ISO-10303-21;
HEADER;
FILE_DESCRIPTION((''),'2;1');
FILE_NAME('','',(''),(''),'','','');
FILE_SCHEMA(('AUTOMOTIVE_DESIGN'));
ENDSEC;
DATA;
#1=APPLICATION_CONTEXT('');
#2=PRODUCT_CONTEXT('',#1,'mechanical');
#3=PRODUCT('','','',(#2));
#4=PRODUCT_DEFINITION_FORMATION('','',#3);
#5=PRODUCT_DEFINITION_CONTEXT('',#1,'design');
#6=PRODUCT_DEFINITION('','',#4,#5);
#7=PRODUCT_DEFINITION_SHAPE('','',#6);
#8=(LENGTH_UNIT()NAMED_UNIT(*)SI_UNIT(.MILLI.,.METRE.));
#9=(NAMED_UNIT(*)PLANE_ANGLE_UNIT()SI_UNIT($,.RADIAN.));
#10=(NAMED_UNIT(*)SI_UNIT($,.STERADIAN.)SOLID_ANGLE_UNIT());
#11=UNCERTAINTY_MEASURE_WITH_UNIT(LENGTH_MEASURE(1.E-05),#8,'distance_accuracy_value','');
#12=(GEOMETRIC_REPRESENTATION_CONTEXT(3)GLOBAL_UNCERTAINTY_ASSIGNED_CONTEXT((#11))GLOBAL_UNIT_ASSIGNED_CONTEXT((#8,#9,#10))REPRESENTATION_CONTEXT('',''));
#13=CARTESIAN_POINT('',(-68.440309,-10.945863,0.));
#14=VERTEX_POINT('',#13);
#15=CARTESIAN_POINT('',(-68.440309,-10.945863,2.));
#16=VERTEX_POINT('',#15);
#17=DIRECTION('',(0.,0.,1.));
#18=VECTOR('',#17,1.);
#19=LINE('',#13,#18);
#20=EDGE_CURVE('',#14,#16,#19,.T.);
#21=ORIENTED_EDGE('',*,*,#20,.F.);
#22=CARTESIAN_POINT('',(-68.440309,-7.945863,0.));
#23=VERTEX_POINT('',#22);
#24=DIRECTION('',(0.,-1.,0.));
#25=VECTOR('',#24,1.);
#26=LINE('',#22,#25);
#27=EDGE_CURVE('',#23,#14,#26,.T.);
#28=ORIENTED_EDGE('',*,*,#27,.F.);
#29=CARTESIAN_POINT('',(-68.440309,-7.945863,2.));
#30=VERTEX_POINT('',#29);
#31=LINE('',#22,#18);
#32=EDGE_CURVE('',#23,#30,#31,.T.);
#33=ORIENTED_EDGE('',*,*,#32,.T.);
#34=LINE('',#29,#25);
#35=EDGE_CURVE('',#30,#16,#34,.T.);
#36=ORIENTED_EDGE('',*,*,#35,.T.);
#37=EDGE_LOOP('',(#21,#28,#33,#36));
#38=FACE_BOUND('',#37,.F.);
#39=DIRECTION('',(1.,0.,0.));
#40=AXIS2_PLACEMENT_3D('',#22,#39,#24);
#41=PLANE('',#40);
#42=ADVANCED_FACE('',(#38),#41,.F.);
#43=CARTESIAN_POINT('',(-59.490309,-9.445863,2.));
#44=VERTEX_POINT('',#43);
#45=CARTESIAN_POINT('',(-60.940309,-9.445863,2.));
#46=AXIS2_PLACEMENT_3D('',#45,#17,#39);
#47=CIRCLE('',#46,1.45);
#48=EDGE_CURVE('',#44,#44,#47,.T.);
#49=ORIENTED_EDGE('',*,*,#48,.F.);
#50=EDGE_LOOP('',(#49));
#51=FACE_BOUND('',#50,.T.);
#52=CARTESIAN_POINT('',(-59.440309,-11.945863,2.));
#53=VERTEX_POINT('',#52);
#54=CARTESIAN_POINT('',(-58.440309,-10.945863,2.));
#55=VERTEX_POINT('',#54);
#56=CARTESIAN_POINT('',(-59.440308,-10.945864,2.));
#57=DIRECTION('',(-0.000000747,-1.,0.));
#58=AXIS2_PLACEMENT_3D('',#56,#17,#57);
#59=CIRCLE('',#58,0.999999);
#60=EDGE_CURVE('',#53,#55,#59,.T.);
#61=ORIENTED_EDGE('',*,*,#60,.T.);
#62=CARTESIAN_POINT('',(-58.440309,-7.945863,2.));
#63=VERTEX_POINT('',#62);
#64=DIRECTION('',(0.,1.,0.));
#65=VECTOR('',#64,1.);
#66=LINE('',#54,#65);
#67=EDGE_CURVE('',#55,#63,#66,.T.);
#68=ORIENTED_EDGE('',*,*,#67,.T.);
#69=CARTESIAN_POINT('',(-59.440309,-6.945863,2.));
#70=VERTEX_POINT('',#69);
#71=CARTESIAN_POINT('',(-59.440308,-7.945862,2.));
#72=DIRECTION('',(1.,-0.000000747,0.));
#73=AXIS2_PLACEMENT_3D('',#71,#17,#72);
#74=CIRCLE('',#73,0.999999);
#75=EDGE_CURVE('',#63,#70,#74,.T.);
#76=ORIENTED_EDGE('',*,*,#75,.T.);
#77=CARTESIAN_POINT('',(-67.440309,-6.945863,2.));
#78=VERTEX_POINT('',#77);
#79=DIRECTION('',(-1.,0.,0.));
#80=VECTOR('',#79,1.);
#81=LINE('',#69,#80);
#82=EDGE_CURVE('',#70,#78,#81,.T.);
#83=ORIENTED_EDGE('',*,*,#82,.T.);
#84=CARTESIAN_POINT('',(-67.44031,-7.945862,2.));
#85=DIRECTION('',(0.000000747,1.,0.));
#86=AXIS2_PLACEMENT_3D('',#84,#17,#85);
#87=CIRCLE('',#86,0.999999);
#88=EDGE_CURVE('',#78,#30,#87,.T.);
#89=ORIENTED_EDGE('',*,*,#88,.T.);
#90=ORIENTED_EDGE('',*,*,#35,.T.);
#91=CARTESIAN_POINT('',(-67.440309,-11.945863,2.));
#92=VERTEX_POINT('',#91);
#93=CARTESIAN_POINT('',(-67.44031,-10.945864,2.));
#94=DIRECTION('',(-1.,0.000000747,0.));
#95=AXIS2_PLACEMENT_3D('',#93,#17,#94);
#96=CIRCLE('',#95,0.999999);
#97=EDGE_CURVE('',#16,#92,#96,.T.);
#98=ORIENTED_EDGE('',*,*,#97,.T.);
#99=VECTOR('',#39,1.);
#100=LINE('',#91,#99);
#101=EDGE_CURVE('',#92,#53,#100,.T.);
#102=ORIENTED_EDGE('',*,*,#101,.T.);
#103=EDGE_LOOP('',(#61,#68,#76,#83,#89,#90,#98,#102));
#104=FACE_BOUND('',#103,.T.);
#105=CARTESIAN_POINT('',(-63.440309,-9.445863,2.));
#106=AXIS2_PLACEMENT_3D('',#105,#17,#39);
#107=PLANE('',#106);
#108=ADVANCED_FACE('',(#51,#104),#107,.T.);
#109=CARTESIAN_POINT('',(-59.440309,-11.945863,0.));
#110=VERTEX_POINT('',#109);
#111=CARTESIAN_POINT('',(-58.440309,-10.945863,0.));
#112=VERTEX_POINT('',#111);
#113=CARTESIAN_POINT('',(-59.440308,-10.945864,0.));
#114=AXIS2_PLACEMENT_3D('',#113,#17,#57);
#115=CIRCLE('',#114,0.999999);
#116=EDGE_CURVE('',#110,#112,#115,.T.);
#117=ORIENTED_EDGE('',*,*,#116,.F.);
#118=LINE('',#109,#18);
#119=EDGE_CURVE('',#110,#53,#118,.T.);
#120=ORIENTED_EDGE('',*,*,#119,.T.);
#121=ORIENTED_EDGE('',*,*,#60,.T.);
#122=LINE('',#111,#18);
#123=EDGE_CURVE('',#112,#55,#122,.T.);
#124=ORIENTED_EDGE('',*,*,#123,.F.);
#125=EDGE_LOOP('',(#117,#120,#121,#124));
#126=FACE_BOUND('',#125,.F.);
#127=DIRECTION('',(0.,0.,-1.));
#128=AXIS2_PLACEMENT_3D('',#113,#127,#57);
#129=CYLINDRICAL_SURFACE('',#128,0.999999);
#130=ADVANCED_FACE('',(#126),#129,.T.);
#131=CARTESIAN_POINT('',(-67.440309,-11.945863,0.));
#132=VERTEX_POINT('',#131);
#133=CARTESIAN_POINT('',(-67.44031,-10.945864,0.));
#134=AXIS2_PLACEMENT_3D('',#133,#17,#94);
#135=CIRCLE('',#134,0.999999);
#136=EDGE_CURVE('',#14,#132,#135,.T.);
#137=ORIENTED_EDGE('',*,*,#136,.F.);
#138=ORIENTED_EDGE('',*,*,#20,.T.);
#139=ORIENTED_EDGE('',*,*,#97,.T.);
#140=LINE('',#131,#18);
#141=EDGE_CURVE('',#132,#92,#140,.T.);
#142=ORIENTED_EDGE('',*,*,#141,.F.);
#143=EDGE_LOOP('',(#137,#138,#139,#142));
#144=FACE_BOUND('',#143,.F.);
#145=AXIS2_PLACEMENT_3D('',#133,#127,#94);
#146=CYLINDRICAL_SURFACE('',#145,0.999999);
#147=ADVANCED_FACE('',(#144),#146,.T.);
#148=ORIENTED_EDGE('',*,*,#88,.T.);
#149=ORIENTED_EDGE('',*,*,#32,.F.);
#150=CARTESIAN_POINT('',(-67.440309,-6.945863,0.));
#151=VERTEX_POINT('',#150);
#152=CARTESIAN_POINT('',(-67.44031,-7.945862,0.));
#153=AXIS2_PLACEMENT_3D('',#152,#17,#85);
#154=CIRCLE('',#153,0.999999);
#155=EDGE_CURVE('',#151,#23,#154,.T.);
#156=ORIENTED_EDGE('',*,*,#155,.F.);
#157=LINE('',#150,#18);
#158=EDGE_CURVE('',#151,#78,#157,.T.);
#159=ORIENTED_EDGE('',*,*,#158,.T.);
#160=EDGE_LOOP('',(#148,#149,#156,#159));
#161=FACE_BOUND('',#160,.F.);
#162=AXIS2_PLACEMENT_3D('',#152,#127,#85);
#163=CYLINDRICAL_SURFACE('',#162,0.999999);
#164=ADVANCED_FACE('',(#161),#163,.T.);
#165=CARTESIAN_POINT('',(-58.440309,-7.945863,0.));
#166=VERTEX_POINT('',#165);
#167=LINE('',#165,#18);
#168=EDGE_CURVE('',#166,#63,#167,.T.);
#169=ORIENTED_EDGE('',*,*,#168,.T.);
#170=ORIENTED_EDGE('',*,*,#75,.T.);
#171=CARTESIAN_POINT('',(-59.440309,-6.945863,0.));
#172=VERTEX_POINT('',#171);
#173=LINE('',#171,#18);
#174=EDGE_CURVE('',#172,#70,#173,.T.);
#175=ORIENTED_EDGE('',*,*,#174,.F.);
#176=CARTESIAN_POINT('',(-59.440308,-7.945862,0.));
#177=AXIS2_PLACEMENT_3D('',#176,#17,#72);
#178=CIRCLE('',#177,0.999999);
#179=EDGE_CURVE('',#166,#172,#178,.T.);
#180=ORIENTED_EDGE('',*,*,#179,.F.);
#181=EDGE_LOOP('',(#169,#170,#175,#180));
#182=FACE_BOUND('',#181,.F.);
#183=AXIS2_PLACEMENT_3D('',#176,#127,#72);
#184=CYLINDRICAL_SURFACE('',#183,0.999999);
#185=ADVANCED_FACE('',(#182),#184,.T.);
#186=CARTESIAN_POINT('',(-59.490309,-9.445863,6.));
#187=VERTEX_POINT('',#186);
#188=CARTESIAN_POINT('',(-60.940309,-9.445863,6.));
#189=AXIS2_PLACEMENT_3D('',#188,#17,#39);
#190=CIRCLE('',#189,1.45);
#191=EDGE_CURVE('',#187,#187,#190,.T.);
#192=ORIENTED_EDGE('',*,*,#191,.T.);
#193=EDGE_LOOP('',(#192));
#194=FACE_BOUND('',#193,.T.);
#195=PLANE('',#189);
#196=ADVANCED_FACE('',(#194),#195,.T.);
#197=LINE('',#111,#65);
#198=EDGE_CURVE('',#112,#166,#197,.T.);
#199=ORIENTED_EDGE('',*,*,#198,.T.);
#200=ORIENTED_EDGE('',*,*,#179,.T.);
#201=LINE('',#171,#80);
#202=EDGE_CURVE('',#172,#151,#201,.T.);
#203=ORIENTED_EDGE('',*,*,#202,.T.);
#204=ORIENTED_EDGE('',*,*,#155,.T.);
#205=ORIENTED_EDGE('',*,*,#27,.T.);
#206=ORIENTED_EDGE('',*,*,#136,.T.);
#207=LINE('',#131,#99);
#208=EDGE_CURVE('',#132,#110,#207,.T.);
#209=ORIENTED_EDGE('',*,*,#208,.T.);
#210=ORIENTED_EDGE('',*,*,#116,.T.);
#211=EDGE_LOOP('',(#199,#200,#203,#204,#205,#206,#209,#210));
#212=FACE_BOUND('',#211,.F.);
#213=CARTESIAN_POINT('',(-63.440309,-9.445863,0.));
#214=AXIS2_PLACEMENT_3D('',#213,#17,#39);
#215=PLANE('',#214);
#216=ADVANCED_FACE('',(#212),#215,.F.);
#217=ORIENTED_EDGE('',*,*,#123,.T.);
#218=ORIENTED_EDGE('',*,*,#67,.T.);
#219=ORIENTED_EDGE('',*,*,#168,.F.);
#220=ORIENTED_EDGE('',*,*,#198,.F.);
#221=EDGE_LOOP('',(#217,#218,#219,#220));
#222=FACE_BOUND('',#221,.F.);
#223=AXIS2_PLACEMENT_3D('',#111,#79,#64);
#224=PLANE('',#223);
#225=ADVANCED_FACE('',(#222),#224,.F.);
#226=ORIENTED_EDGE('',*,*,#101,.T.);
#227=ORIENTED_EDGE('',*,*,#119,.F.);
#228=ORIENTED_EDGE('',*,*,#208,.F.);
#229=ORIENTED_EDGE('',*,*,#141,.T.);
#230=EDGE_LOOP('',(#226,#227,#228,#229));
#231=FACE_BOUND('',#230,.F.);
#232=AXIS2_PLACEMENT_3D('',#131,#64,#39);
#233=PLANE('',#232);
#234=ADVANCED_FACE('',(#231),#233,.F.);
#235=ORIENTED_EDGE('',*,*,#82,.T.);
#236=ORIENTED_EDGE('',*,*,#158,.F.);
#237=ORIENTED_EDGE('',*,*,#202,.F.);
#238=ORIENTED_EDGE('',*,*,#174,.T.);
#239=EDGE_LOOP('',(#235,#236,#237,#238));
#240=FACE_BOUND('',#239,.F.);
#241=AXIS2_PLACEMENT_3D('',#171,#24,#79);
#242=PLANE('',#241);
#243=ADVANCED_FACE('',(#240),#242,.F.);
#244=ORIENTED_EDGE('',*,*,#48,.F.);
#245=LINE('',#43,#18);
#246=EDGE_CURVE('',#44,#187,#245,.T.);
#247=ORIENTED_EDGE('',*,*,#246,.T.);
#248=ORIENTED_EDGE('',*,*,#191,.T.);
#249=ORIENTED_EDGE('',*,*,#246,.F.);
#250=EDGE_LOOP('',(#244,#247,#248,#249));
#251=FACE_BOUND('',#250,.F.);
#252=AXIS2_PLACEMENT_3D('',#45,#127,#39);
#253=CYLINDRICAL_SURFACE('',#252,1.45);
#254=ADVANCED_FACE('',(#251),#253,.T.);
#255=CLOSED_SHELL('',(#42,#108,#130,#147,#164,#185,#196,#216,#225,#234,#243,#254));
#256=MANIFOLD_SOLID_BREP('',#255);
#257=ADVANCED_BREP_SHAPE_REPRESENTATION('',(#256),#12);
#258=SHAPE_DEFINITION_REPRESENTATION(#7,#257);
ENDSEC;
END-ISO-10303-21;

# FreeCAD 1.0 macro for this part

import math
import FreeCAD as App
import Part
import Sketcher

V = App.Vector

doc = App.newDocument("Part")
body = doc.addObject("PartDesign::Body", "Body")

sketch1 = body.newObject("Sketcher::SketchObject", "Sketch")
sketch1.AttachmentSupport = (doc.getObject("XY_Plane"), [""])
sketch1.MapMode = "FlatFace"
sketch1.addGeometry([
    Part.LineSegment(V(-67.4, -11.9, 0), V(-59.4, -11.9, 0)),
    Part.ArcOfCircle(Part.Circle(V(-59.4, -10.9, 0), V(0, 0, 1), 1), math.radians(-90), math.radians(0)),
    Part.LineSegment(V(-58.4, -10.9, 0), V(-58.4, -7.9, 0)),
    Part.ArcOfCircle(Part.Circle(V(-59.4, -7.9, 0), V(0, 0, 1), 1), math.radians(0), math.radians(90)),
    Part.LineSegment(V(-59.4, -6.9, 0), V(-67.4, -6.9, 0)),
    Part.ArcOfCircle(Part.Circle(V(-67.4, -7.9, 0), V(0, 0, 1), 1), math.radians(90), math.radians(180)),
    Part.LineSegment(V(-68.4, -7.9, 0), V(-68.4, -10.9, 0)),
    Part.ArcOfCircle(Part.Circle(V(-67.4, -10.9, 0), V(0, 0, 1), 1), math.radians(180), math.radians(270)),
], False)
sketch1.addConstraint([
    Sketcher.Constraint("Tangent", 0, 2, 1, 1),
    Sketcher.Constraint("Tangent", 1, 2, 2, 1),
    Sketcher.Constraint("Tangent", 2, 2, 3, 1),
    Sketcher.Constraint("Tangent", 3, 2, 4, 1),
    Sketcher.Constraint("Tangent", 4, 2, 5, 1),
    Sketcher.Constraint("Tangent", 5, 2, 6, 1),
    Sketcher.Constraint("Tangent", 6, 2, 7, 1),
    Sketcher.Constraint("Tangent", 7, 2, 0, 1),
    Sketcher.Constraint("Horizontal", 0),
    Sketcher.Constraint("Vertical", 2),
    Sketcher.Constraint("Horizontal", 4),
    Sketcher.Constraint("Vertical", 6),
    Sketcher.Constraint("Equal", 1, 3),
    Sketcher.Constraint("Equal", 3, 5),
    Sketcher.Constraint("Equal", 5, 7),
    Sketcher.Constraint("Radius", 1, 0.999999),
    Sketcher.Constraint("DistanceX", 0, 1, 0, 2, 8.0),
    Sketcher.Constraint("DistanceY", 2, 1, 2, 2, 3.0),
    Sketcher.Constraint("DistanceX", 1, 3, -1, 1, 59.440308),
    Sketcher.Constraint("DistanceY", 1, 3, -1, 1, 10.945864),
])
pad1 = body.newObject("PartDesign::Pad", "Pad")
pad1.Profile = sketch1
pad1.Length = 2

sketch2 = body.newObject("Sketcher::SketchObject", "Sketch001")
sketch2.AttachmentSupport = (doc.getObject("XY_Plane"), [""])
sketch2.MapMode = "FlatFace"
sketch2.AttachmentOffset = App.Placement(V(0, 0, 2), App.Rotation())
sketch2.addGeometry(Part.Circle(V(-60.9, -9.4, 0), V(0, 0, 1), 1.4), False)
sketch2.addConstraint([
    Sketcher.Constraint("Diameter", 0, 2.9),
    Sketcher.Constraint("DistanceX", 0, 3, -1, 1, 60.940309),
    Sketcher.Constraint("DistanceY", 0, 3, -1, 1, 9.445863),
])
pad2 = body.newObject("PartDesign::Pad", "Pad001")
pad2.Profile = sketch2
pad2.Length = 4

doc.recompute()
